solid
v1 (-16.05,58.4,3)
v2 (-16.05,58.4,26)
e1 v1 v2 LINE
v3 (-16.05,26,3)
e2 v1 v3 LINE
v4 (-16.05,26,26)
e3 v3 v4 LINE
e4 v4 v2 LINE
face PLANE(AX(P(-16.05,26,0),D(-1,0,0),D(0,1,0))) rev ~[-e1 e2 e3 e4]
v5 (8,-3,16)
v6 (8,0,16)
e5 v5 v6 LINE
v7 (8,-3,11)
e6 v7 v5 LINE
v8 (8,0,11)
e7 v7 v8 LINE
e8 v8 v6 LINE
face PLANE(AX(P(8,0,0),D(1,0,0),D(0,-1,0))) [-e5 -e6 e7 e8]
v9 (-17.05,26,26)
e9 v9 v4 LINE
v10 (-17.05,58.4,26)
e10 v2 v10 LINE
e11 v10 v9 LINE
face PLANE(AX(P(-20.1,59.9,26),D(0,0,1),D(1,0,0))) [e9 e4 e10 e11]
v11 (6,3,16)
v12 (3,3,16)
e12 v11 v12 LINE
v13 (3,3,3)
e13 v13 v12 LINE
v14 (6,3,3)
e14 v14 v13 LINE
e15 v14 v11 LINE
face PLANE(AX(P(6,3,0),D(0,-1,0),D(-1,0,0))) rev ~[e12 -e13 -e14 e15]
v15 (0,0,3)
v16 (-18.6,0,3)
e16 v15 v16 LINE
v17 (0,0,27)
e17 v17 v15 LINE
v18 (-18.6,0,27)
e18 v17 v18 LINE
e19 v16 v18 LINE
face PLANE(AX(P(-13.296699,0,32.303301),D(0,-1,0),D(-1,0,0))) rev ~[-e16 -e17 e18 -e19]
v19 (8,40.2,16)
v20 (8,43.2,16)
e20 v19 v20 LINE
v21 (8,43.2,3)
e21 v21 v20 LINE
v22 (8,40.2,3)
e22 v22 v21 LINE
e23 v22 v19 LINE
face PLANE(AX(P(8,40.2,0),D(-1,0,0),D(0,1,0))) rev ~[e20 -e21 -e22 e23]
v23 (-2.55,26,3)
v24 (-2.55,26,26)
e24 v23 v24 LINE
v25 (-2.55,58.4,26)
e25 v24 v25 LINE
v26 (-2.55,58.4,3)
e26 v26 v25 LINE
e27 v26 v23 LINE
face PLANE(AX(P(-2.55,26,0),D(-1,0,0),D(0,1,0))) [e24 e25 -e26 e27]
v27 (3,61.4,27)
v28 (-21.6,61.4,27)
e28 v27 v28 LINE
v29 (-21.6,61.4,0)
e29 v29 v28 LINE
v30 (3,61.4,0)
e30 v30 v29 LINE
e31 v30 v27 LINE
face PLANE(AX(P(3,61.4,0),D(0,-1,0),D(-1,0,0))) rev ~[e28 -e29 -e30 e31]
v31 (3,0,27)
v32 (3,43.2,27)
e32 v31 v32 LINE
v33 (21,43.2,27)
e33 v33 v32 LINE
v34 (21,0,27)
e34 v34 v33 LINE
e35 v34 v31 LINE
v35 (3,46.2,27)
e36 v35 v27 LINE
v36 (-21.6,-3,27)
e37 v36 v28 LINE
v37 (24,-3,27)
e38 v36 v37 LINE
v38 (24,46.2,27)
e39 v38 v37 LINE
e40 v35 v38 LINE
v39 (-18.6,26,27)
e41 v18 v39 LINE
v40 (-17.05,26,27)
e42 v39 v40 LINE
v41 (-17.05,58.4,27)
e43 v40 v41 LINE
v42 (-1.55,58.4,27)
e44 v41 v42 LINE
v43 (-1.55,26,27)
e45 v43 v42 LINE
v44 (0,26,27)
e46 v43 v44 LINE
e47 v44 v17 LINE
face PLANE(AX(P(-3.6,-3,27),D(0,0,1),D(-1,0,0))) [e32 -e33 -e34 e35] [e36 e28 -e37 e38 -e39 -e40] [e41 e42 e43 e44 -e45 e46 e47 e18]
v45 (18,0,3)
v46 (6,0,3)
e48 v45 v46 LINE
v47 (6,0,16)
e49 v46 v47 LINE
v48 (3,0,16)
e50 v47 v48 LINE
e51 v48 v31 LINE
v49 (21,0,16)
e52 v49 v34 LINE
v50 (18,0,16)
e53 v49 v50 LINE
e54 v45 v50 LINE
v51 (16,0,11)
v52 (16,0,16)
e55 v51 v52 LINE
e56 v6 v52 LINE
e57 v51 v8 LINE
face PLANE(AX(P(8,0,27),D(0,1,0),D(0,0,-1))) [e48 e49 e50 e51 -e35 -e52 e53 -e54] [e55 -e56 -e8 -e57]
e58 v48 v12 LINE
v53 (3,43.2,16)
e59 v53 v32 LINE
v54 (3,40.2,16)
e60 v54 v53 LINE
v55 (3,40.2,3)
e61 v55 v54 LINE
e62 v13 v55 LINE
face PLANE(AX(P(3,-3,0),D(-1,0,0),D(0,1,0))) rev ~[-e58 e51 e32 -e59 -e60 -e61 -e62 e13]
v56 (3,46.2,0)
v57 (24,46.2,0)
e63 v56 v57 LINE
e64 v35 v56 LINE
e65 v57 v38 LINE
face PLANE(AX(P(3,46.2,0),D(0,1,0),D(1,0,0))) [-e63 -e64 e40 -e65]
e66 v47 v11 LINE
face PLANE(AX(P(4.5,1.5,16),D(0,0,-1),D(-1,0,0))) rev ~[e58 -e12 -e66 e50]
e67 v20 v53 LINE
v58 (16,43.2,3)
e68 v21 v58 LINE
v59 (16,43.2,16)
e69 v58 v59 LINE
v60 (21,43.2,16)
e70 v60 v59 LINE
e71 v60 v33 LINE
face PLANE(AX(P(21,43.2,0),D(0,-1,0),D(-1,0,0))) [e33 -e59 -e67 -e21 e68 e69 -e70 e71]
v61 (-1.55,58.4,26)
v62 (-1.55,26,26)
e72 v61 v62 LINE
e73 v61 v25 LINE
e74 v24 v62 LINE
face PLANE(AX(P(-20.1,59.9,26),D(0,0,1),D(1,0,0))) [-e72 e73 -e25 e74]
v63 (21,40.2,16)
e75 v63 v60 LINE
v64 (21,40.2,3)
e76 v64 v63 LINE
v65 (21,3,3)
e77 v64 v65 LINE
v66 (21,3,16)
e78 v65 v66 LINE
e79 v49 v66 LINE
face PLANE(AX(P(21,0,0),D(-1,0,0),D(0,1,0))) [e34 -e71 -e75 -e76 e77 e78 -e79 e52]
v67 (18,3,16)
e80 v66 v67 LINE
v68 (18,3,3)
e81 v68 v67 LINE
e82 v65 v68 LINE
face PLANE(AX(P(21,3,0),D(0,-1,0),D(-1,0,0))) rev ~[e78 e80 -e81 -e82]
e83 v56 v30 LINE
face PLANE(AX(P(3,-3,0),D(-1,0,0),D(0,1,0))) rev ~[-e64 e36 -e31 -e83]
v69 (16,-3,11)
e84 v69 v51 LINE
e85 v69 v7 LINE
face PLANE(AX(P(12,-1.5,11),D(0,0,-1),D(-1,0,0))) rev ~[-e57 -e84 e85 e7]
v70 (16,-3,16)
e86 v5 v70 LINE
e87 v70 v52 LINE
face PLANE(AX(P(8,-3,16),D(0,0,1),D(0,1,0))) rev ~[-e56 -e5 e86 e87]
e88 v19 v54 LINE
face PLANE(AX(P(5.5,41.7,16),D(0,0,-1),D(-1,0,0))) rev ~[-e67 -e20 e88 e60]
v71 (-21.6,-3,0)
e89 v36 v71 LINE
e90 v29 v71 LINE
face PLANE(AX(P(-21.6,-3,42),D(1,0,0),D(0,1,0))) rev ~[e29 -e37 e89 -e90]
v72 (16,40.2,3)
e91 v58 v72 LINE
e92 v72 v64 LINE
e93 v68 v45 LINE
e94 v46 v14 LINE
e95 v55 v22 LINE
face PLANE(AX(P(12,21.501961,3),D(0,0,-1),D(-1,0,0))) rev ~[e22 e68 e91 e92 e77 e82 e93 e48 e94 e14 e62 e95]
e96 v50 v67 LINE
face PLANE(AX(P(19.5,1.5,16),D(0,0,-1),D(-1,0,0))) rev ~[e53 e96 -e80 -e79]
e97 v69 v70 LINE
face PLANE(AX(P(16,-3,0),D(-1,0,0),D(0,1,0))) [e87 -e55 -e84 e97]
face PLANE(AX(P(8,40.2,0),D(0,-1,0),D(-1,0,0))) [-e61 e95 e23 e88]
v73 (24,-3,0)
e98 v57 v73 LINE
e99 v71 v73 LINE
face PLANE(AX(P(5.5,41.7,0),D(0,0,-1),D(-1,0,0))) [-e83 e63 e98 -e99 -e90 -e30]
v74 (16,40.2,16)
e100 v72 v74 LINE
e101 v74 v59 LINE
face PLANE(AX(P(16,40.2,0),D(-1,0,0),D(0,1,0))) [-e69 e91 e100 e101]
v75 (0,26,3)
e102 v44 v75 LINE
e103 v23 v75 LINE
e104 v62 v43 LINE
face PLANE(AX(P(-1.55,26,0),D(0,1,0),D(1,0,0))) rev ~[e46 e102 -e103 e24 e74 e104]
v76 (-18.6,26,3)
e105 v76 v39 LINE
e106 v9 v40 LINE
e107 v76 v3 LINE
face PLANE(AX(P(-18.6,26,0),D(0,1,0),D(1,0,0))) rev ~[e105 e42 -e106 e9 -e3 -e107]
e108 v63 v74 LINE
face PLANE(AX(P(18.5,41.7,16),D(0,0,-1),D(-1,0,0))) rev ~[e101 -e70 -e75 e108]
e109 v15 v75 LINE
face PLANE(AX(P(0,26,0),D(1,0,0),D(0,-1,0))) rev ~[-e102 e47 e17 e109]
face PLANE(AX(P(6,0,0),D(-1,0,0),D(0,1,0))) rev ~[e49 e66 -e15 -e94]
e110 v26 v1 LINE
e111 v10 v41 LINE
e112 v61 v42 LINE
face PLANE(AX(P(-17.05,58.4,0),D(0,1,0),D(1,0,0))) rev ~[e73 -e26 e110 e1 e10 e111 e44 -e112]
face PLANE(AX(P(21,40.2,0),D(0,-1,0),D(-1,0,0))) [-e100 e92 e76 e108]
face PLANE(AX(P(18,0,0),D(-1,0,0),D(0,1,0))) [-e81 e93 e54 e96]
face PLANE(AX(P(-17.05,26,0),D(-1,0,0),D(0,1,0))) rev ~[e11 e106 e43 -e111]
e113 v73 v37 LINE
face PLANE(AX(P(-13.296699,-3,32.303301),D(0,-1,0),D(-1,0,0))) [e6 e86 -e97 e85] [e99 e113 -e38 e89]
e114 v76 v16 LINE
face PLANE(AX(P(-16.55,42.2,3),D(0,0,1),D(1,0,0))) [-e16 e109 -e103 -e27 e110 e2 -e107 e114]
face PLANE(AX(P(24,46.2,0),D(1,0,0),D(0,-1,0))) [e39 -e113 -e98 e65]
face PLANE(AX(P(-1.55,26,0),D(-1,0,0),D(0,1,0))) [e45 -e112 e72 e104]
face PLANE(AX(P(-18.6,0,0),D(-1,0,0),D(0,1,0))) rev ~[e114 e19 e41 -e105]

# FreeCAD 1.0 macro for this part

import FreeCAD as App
import Part
import Sketcher

V = App.Vector
Q = App.Units.Quantity


def add_polygon(sketch, points):
    """Adds a closed chain of lines whose ends are joined by coincident constraints."""
    first, n = sketch.GeometryCount, len(points)
    for a, b in zip(points, points[1:] + points[:1]):
        sketch.addGeometry(Part.LineSegment(App.Vector(*a, 0), App.Vector(*b, 0)), False)
    for i in range(n):
        sketch.addConstraint(Sketcher.Constraint("Coincident", first + i, 2, first + (i + 1) % n, 1))

doc = App.newDocument("Part")
params = doc.addObject("Spreadsheet::Sheet", "Params")
for row, (alias, value) in enumerate([
    ("sketch1_width", "24.6 mm"),
    ("sketch1_height", "64.4 mm"),
    ("pad1_length", "3 mm"),
    ("sketch2_height", "26 mm"),
    ("sketch2_width", "24.6 mm"),
    ("sketch2_width2", "13.5 mm"),
    ("sketch2_width3", "18.6 mm"),
    ("sketch2_height2", "64.4 mm"),
    ("pad2_length", "26 mm"),
    ("sketch3_height", "3 mm"),
    ("sketch3_width", "24.6 mm"),
    ("pad3_length", "35 mm"),
    ("sketch4_height", "26 mm"),
    ("sketch4_width", "24.6 mm"),
    ("sketch4_width2", "15.5 mm"),
    ("sketch4_width3", "18.6 mm"),
    ("sketch4_height2", "64.4 mm"),
    ("pad4_length", "27 mm"),
    ("sketch5_width", "3 mm"),
    ("sketch5_width2", "5 mm"),
    ("sketch5_width3", "8 mm"),
    ("sketch5_height", "37.2 mm"),
    ("pad5_length", "3 mm"),
    ("sketch6_width", "2 mm"),
    ("sketch6_width2", "5 mm"),
    ("sketch6_width3", "8 mm"),
    ("sketch6_height", "37.2 mm"),
    ("pad6_length", "2 mm"),
    ("sketch7_width", "8 mm"),
    ("sketch7_height", "3 mm"),
    ("pad7_length", "11 mm"),
    ("sketch8_width", "5 mm"),
    ("sketch8_width2", "18 mm"),
    ("sketch8_width3", "21 mm"),
    ("sketch8_height", "3 mm"),
    ("sketch8_height2", "43.2 mm"),
    ("pad8_length", "27 mm"),
    ("sketch9_width", "33.6 mm"),
    ("sketch9_height", "60.4 mm"),
    ("pad9_length", "3 mm"),
    ("sketch10_height", "54.4 mm"),
    ("pocket1_length", "3 mm"),
    ("sketch11_height", "3 mm"),
    ("sketch11_width", "33.6 mm"),
    ("sketch11_height2", "54.4 mm"),
    ("pad10_length", "27 mm"),
    ("sketch12_height", "47.4 mm"),
    ("pad11_length", "3 mm"),
    ("sketch13_height", "8 mm"),
    ("sketch13_width", "24.6 mm"),
    ("pocket2_length", "3 mm"),
    ("sketch14_width", "3 mm"),
    ("sketch14_height", "11 mm"),
    ("pad12_length", "8 mm"),
    ("sketch15_width", "5 mm"),
    ("sketch15_width2", "3 mm"),
    ("pad13_length", "16 mm"),
    ("sketch16_height", "3 mm"),
    ("sketch16_width", "36.6 mm"),
    ("pad14_length", "15 mm"),
    ("sketch17_width", "18.8 mm"),
    ("pocket3_length", "15 mm"),
    ("sketch18_width", "15 mm"),
    ("pad15_length", "3 mm"),
    ("sketch19_width", "15 mm"),
    ("pad16_length", "3 mm"),
    ("sketch20_width", "33.6 mm"),
    ("sketch20_height", "60.4 mm"),
    ("pocket4_length", "70 mm"),
    ("sketch21_width", "18 mm"),
    ("sketch21_width2", "3 mm"),
    ("sketch21_height", "15 mm"),
    ("pocket5_length", "70 mm"),
], start=1):
    params.set(f"A{row}", alias)
    params.set(f"B{row}", "=" + value)
    params.setAlias(f"B{row}", alias)

body = doc.addObject("PartDesign::Body", "Body")

# Sketch on XY plane
sketch1 = doc.addObject("Sketcher::SketchObject", "Sketch")
body.addObject(sketch1)
sketch1.AttachmentSupport = (doc.XY_Plane, [""])
sketch1.MapMode = "FlatFace"
add_polygon(sketch1, [(3, 61.4), (-21.6, 61.4), (-21.6, -3), (3, -3)])  # lines 0-3
sketch1.addConstraint(Sketcher.Constraint("Horizontal", 0))
sketch1.addConstraint(Sketcher.Constraint("Vertical", 1))
sketch1.addConstraint(Sketcher.Constraint("Horizontal", 2))
sketch1.addConstraint(Sketcher.Constraint("Vertical", 3))
sketch1.addConstraint(Sketcher.Constraint("DistanceX", 0, 2, 0, 1, Q("24.6 mm")))
sketch1.addConstraint(Sketcher.Constraint("DistanceY", 1, 2, 1, 1, Q("64.4 mm")))
sketch1.addConstraint(Sketcher.Constraint("DistanceY", 1, 2, -1, 1, Q("3 mm")))
sketch1.addConstraint(Sketcher.Constraint("DistanceX", -1, 1, 2, 2, Q("3 mm")))
sketch1.setExpression("Constraints[8]", "Params.sketch1_width")
sketch1.setExpression("Constraints[9]", "Params.sketch1_height")
pad1 = doc.addObject("PartDesign::Pad", "Pad")
body.addObject(pad1)
pad1.Profile = sketch1
pad1.setExpression("Length", "Params.pad1_length")

# Sketch on XY plane
sketch2 = doc.addObject("Sketcher::SketchObject", "Sketch001")
body.addObject(sketch2)
sketch2.AttachmentSupport = (doc.XY_Plane, [""])
sketch2.MapMode = "FlatFace"
add_polygon(sketch2, [(-21.6, 61.4), (-21.6, -3), (3, -3), (3, 61.4)])  # lines 0-3
add_polygon(sketch2, [(-18.6, 0), (-18.6, 26), (-16.05, 26), (-16.05, 58.4), (-2.55, 58.4), (-2.55, 26), (0, 26), (0, 0)])  # lines 4-11
sketch2.addConstraint(Sketcher.Constraint("Vertical", 0))
sketch2.addConstraint(Sketcher.Constraint("Horizontal", 1))
sketch2.addConstraint(Sketcher.Constraint("Vertical", 2))
sketch2.addConstraint(Sketcher.Constraint("Horizontal", 3))
sketch2.addConstraint(Sketcher.Constraint("Vertical", 4))
sketch2.addConstraint(Sketcher.Constraint("Horizontal", 5))
sketch2.addConstraint(Sketcher.Constraint("Vertical", 6))
sketch2.addConstraint(Sketcher.Constraint("Horizontal", 7))
sketch2.addConstraint(Sketcher.Constraint("Vertical", 8))
sketch2.addConstraint(Sketcher.Constraint("Horizontal", 9))
sketch2.addConstraint(Sketcher.Constraint("Vertical", 10))
sketch2.addConstraint(Sketcher.Constraint("Horizontal", 11))
sketch2.addConstraint(Sketcher.Constraint("Coincident", 10, 2, -1, 1))
sketch2.addConstraint(Sketcher.Constraint("Horizontal", 5, 2, 8, 2))
sketch2.addConstraint(Sketcher.Constraint("Equal", 5, 9))
sketch2.addConstraint(Sketcher.Constraint("DistanceY", 4, 1, 4, 2, Q("26 mm")))
sketch2.addConstraint(Sketcher.Constraint("DistanceX", 1, 1, 1, 2, Q("24.6 mm")))
sketch2.addConstraint(Sketcher.Constraint("DistanceX", 7, 1, 7, 2, Q("13.5 mm")))
sketch2.addConstraint(Sketcher.Constraint("DistanceX", 11, 2, 11, 1, Q("18.6 mm")))
sketch2.addConstraint(Sketcher.Constraint("DistanceY", 0, 2, 0, 1, Q("64.4 mm")))
sketch2.addConstraint(Sketcher.Constraint("DistanceY", 6, 1, 6, 2, Q("32.4 mm")))
sketch2.addConstraint(Sketcher.Constraint("DistanceY", 0, 2, -1, 1, Q("3 mm")))
sketch2.addConstraint(Sketcher.Constraint("DistanceX", -1, 1, 1, 2, Q("3 mm")))
sketch2.setExpression("Constraints[27]", "Params.sketch2_height")
sketch2.setExpression("Constraints[28]", "Params.sketch2_width")
sketch2.setExpression("Constraints[29]", "Params.sketch2_width2")
sketch2.setExpression("Constraints[30]", "Params.sketch2_width3")
sketch2.setExpression("Constraints[31]", "Params.sketch2_height2")
pad2 = doc.addObject("PartDesign::Pad", "Pad001")
body.addObject(pad2)
pad2.Profile = sketch2
pad2.setExpression("Length", "Params.pad2_length")

# Sketch on XY plane
sketch3 = doc.addObject("Sketcher::SketchObject", "Sketch002")
body.addObject(sketch3)
sketch3.AttachmentSupport = (doc.XY_Plane, [""])
sketch3.MapMode = "FlatFace"
add_polygon(sketch3, [(-21.6, 0), (-21.6, -3), (3, -3), (3, 0)])  # lines 0-3
sketch3.addConstraint(Sketcher.Constraint("Vertical", 0))
sketch3.addConstraint(Sketcher.Constraint("Horizontal", 1))
sketch3.addConstraint(Sketcher.Constraint("Vertical", 2))
sketch3.addConstraint(Sketcher.Constraint("Horizontal", 3))
sketch3.addConstraint(Sketcher.Constraint("PointOnObject", 2, 2, -1))
sketch3.addConstraint(Sketcher.Constraint("DistanceY", 0, 2, 0, 1, Q("3 mm")))
sketch3.addConstraint(Sketcher.Constraint("DistanceX", 1, 1, 1, 2, Q("24.6 mm")))
sketch3.addConstraint(Sketcher.Constraint("DistanceX", -1, 1, 1, 2, Q("3 mm")))
sketch3.setExpression("Constraints[9]", "Params.sketch3_height")
sketch3.setExpression("Constraints[10]", "Params.sketch3_width")
pad3 = doc.addObject("PartDesign::Pad", "Pad002")
body.addObject(pad3)
pad3.Profile = sketch3
pad3.setExpression("Length", "Params.pad3_length")

# Sketch on XY plane
sketch4 = doc.addObject("Sketcher::SketchObject", "Sketch003")
body.addObject(sketch4)
sketch4.AttachmentSupport = (doc.XY_Plane, [""])
sketch4.MapMode = "FlatFace"
add_polygon(sketch4, [(3, 61.4), (-21.6, 61.4), (-21.6, -3), (3, -3)])  # lines 0-3
add_polygon(sketch4, [(-18.6, 26), (-17.05, 26), (-17.05, 58.4), (-1.55, 58.4), (-1.55, 26), (0, 26), (0, 0), (-18.6, 0)])  # lines 4-11
sketch4.addConstraint(Sketcher.Constraint("Horizontal", 0))
sketch4.addConstraint(Sketcher.Constraint("Vertical", 1))
sketch4.addConstraint(Sketcher.Constraint("Horizontal", 2))
sketch4.addConstraint(Sketcher.Constraint("Vertical", 3))
sketch4.addConstraint(Sketcher.Constraint("Horizontal", 4))
sketch4.addConstraint(Sketcher.Constraint("Vertical", 5))
sketch4.addConstraint(Sketcher.Constraint("Horizontal", 6))
sketch4.addConstraint(Sketcher.Constraint("Vertical", 7))
sketch4.addConstraint(Sketcher.Constraint("Horizontal", 8))
sketch4.addConstraint(Sketcher.Constraint("Vertical", 9))
sketch4.addConstraint(Sketcher.Constraint("Horizontal", 10))
sketch4.addConstraint(Sketcher.Constraint("Vertical", 11))
sketch4.addConstraint(Sketcher.Constraint("Coincident", 9, 2, -1, 1))
sketch4.addConstraint(Sketcher.Constraint("Horizontal", 4, 2, 7, 2))
sketch4.addConstraint(Sketcher.Constraint("Equal", 4, 8))
sketch4.addConstraint(Sketcher.Constraint("DistanceY", 9, 2, 9, 1, Q("26 mm")))
sketch4.addConstraint(Sketcher.Constraint("DistanceX", 0, 2, 0, 1, Q("24.6 mm")))
sketch4.addConstraint(Sketcher.Constraint("DistanceX", 6, 1, 6, 2, Q("15.5 mm")))
sketch4.addConstraint(Sketcher.Constraint("DistanceX", 10, 2, 10, 1, Q("18.6 mm")))
sketch4.addConstraint(Sketcher.Constraint("DistanceY", 1, 2, 1, 1, Q("64.4 mm")))
sketch4.addConstraint(Sketcher.Constraint("DistanceY", 5, 1, 5, 2, Q("32.4 mm")))
sketch4.addConstraint(Sketcher.Constraint("DistanceY", 1, 2, -1, 1, Q("3 mm")))
sketch4.addConstraint(Sketcher.Constraint("DistanceX", -1, 1, 2, 2, Q("3 mm")))
sketch4.setExpression("Constraints[27]", "Params.sketch4_height")
sketch4.setExpression("Constraints[28]", "Params.sketch4_width")
sketch4.setExpression("Constraints[29]", "Params.sketch4_width2")
sketch4.setExpression("Constraints[30]", "Params.sketch4_width3")
sketch4.setExpression("Constraints[31]", "Params.sketch4_height2")
pad4 = doc.addObject("PartDesign::Pad", "Pad003")
body.addObject(pad4)
pad4.Profile = sketch4
pad4.setExpression("Length", "Params.pad4_length")

# Sketch on XY plane
sketch5 = doc.addObject("Sketcher::SketchObject", "Sketch004")
body.addObject(sketch5)
sketch5.AttachmentSupport = (doc.XY_Plane, [""])
sketch5.MapMode = "FlatFace"
add_polygon(sketch5, [(6, 0), (6, 3), (3, 3), (3, 40.2), (8, 40.2), (8, 43.2), (16, 43.2), (16, 40.2), (21, 40.2), (21, 3), (18, 3), (18, 0)])  # lines 0-11
sketch5.addConstraint(Sketcher.Constraint("Vertical", 0))
sketch5.addConstraint(Sketcher.Constraint("Horizontal", 1))
sketch5.addConstraint(Sketcher.Constraint("Vertical", 2))
sketch5.addConstraint(Sketcher.Constraint("Horizontal", 3))
sketch5.addConstraint(Sketcher.Constraint("Vertical", 4))
sketch5.addConstraint(Sketcher.Constraint("Horizontal", 5))
sketch5.addConstraint(Sketcher.Constraint("Vertical", 6))
sketch5.addConstraint(Sketcher.Constraint("Horizontal", 7))
sketch5.addConstraint(Sketcher.Constraint("Vertical", 8))
sketch5.addConstraint(Sketcher.Constraint("Horizontal", 9))
sketch5.addConstraint(Sketcher.Constraint("Vertical", 10))
sketch5.addConstraint(Sketcher.Constraint("Horizontal", 11))
sketch5.addConstraint(Sketcher.Constraint("PointOnObject", 10, 2, -1))
sketch5.addConstraint(Sketcher.Constraint("Horizontal", 3, 2, 6, 2))
sketch5.addConstraint(Sketcher.Constraint("Horizontal", 1, 2, 8, 2))
sketch5.addConstraint(Sketcher.Constraint("Equal", 3, 7))
sketch5.addConstraint(Sketcher.Constraint("Equal", 1, 9))
sketch5.addConstraint(Sketcher.Constraint("Equal", 9, 0))
sketch5.addConstraint(Sketcher.Constraint("Equal", 0, 4))
sketch5.addConstraint(Sketcher.Constraint("DistanceX", 1, 2, 1, 1, Q("3 mm")))
sketch5.addConstraint(Sketcher.Constraint("DistanceX", 3, 1, 3, 2, Q("5 mm")))
sketch5.addConstraint(Sketcher.Constraint("DistanceX", 5, 1, 5, 2, Q("8 mm")))
sketch5.addConstraint(Sketcher.Constraint("DistanceY", 2, 1, 2, 2, Q("37.2 mm")))
sketch5.addConstraint(Sketcher.Constraint("DistanceX", -1, 1, 0, 2, Q("6 mm")))
sketch5.setExpression("Constraints[31]", "Params.sketch5_width")
sketch5.setExpression("Constraints[32]", "Params.sketch5_width2")
sketch5.setExpression("Constraints[33]", "Params.sketch5_width3")
sketch5.setExpression("Constraints[34]", "Params.sketch5_height")
pad5 = doc.addObject("PartDesign::Pad", "Pad004")
body.addObject(pad5)
pad5.Profile = sketch5
pad5.setExpression("Length", "Params.pad5_length")

# Sketch on XY plane
sketch6 = doc.addObject("Sketcher::SketchObject", "Sketch005")
body.addObject(sketch6)
sketch6.AttachmentSupport = (doc.XY_Plane, [""])
sketch6.MapMode = "FlatFace"
add_polygon(sketch6, [(6, 3), (6, 0), (8, 0), (8, -3), (3, -3), (3, 3)])  # lines 0-5
add_polygon(sketch6, [(24, -3), (16, -3), (16, 0), (18, 0), (18, 3), (21, 3), (21, 40.2), (16, 40.2), (16, 43.2), (8, 43.2), (8, 40.2), (3, 40.2), (3, 46.2), (24, 46.2)])  # lines 6-19
sketch6.addConstraint(Sketcher.Constraint("Vertical", 0))
sketch6.addConstraint(Sketcher.Constraint("Horizontal", 1))
sketch6.addConstraint(Sketcher.Constraint("Vertical", 2))
sketch6.addConstraint(Sketcher.Constraint("Horizontal", 3))
sketch6.addConstraint(Sketcher.Constraint("Vertical", 4))
sketch6.addConstraint(Sketcher.Constraint("Horizontal", 5))
sketch6.addConstraint(Sketcher.Constraint("Horizontal", 6))
sketch6.addConstraint(Sketcher.Constraint("Vertical", 7))
sketch6.addConstraint(Sketcher.Constraint("Horizontal", 8))
sketch6.addConstraint(Sketcher.Constraint("Vertical", 9))
sketch6.addConstraint(Sketcher.Constraint("Horizontal", 10))
sketch6.addConstraint(Sketcher.Constraint("Vertical", 11))
sketch6.addConstraint(Sketcher.Constraint("Horizontal", 12))
sketch6.addConstraint(Sketcher.Constraint("Vertical", 13))
sketch6.addConstraint(Sketcher.Constraint("Horizontal", 14))
sketch6.addConstraint(Sketcher.Constraint("Vertical", 15))
sketch6.addConstraint(Sketcher.Constraint("Horizontal", 16))
sketch6.addConstraint(Sketcher.Constraint("Vertical", 17))
sketch6.addConstraint(Sketcher.Constraint("Horizontal", 18))
sketch6.addConstraint(Sketcher.Constraint("Vertical", 19))
sketch6.addConstraint(Sketcher.Constraint("PointOnObject", 0, 2, -1))
sketch6.addConstraint(Sketcher.Constraint("PointOnObject", 7, 2, -1))
sketch6.addConstraint(Sketcher.Constraint("Horizontal", 3, 2, 6, 2))
sketch6.addConstraint(Sketcher.Constraint("Horizontal", 5, 2, 9, 2))
sketch6.addConstraint(Sketcher.Constraint("Horizontal", 12, 2, 15, 2))
sketch6.addConstraint(Sketcher.Constraint("Vertical", 7, 2, 12, 2))
sketch6.addConstraint(Sketcher.Constraint("Vertical", 2, 2, 14, 2))
sketch6.addConstraint(Sketcher.Constraint("Vertical", 4, 2, 16, 2))
sketch6.addConstraint(Sketcher.Constraint("Equal", 1, 8))
sketch6.addConstraint(Sketcher.Constraint("Equal", 5, 10))
sketch6.addConstraint(Sketcher.Constraint("Equal", 6, 14))
sketch6.addConstraint(Sketcher.Constraint("Equal", 10, 0))
sketch6.addConstraint(Sketcher.Constraint("Equal", 0, 2))
sketch6.addConstraint(Sketcher.Constraint("Equal", 9, 13))
sketch6.addConstraint(Sketcher.Constraint("Equal", 4, 17))
sketch6.addConstraint(Sketcher.Constraint("DistanceX", 1, 1, 1, 2, Q("2 mm")))
sketch6.addConstraint(Sketcher.Constraint("DistanceX", 3, 2, 3, 1, Q("5 mm")))
sketch6.addConstraint(Sketcher.Constraint("DistanceX", 6, 2, 6, 1, Q("8 mm")))
sketch6.addConstraint(Sketcher.Constraint("DistanceY", 11, 1, 11, 2, Q("37.2 mm")))
sketch6.addConstraint(Sketcher.Constraint("DistanceX", -1, 1, 0, 2, Q("6 mm")))
sketch6.setExpression("Constraints[55]", "Params.sketch6_width")
sketch6.setExpression("Constraints[56]", "Params.sketch6_width2")
sketch6.setExpression("Constraints[57]", "Params.sketch6_width3")
sketch6.setExpression("Constraints[58]", "Params.sketch6_height")
pad6 = doc.addObject("PartDesign::Pad", "Pad005")
body.addObject(pad6)
pad6.Profile = sketch6
pad6.setExpression("Length", "Params.pad6_length")

# Sketch on XY plane
sketch7 = doc.addObject("Sketcher::SketchObject", "Sketch006")
body.addObject(sketch7)
sketch7.AttachmentSupport = (doc.XY_Plane, [""])
sketch7.MapMode = "FlatFace"
add_polygon(sketch7, [(16, 0), (16, -3), (8, -3), (8, 0)])  # lines 0-3
sketch7.addConstraint(Sketcher.Constraint("Vertical", 0))
sketch7.addConstraint(Sketcher.Constraint("Horizontal", 1))
sketch7.addConstraint(Sketcher.Constraint("Vertical", 2))
sketch7.addConstraint(Sketcher.Constraint("Horizontal", 3))
sketch7.addConstraint(Sketcher.Constraint("PointOnObject", 2, 2, -1))
sketch7.addConstraint(Sketcher.Constraint("DistanceX", 1, 2, 1, 1, Q("8 mm")))
sketch7.addConstraint(Sketcher.Constraint("DistanceY", 0, 2, 0, 1, Q("3 mm")))
sketch7.addConstraint(Sketcher.Constraint("DistanceX", -1, 1, 0, 2, Q("16 mm")))
sketch7.setExpression("Constraints[9]", "Params.sketch7_width")
sketch7.setExpression("Constraints[10]", "Params.sketch7_height")
pad7 = doc.addObject("PartDesign::Pad", "Pad006")
body.addObject(pad7)
pad7.Profile = sketch7
pad7.setExpression("Length", "Params.pad7_length")

# Sketch on XY plane
sketch8 = doc.addObject("Sketcher::SketchObject", "Sketch007")
body.addObject(sketch8)
sketch8.AttachmentSupport = (doc.XY_Plane, [""])
sketch8.MapMode = "FlatFace"
add_polygon(sketch8, [(3, -3), (3, 0), (8, 0), (8, -3)])  # lines 0-3
add_polygon(sketch8, [(16, -3), (16, 0), (21, 0), (21, 43.2), (3, 43.2), (3, 46.2), (24, 46.2), (24, -3)])  # lines 4-11
sketch8.addConstraint(Sketcher.Constraint("Vertical", 0))
sketch8.addConstraint(Sketcher.Constraint("Horizontal", 1))
sketch8.addConstraint(Sketcher.Constraint("Vertical", 2))
sketch8.addConstraint(Sketcher.Constraint("Horizontal", 3))
sketch8.addConstraint(Sketcher.Constraint("Vertical", 4))
sketch8.addConstraint(Sketcher.Constraint("Horizontal", 5))
sketch8.addConstraint(Sketcher.Constraint("Vertical", 6))
sketch8.addConstraint(Sketcher.Constraint("Horizontal", 7))
sketch8.addConstraint(Sketcher.Constraint("Vertical", 8))
sketch8.addConstraint(Sketcher.Constraint("Horizontal", 9))
sketch8.addConstraint(Sketcher.Constraint("Vertical", 10))
sketch8.addConstraint(Sketcher.Constraint("Horizontal", 11))
sketch8.addConstraint(Sketcher.Constraint("PointOnObject", 0, 2, -1))
sketch8.addConstraint(Sketcher.Constraint("PointOnObject", 4, 2, -1))
sketch8.addConstraint(Sketcher.Constraint("Horizontal", 3, 2, 10, 2))
sketch8.addConstraint(Sketcher.Constraint("Vertical", 3, 2, 7, 2))
sketch8.addConstraint(Sketcher.Constraint("Equal", 3, 5))
sketch8.addConstraint(Sketcher.Constraint("Equal", 4, 8))
sketch8.addConstraint(Sketcher.Constraint("DistanceX", 1, 1, 1, 2, Q("5 mm")))
sketch8.addConstraint(Sketcher.Constraint("DistanceX", 7, 2, 7, 1, Q("18 mm")))
sketch8.addConstraint(Sketcher.Constraint("DistanceX", 9, 1, 9, 2, Q("21 mm")))
sketch8.addConstraint(Sketcher.Constraint("DistanceY", 0, 1, 0, 2, Q("3 mm")))
sketch8.addConstraint(Sketcher.Constraint("DistanceY", 6, 1, 6, 2, Q("43.2 mm")))
sketch8.addConstraint(Sketcher.Constraint("DistanceX", -1, 1, 0, 2, Q("3 mm")))
sketch8.setExpression("Constraints[30]", "Params.sketch8_width")
sketch8.setExpression("Constraints[31]", "Params.sketch8_width2")
sketch8.setExpression("Constraints[32]", "Params.sketch8_width3")
sketch8.setExpression("Constraints[33]", "Params.sketch8_height")
sketch8.setExpression("Constraints[34]", "Params.sketch8_height2")
pad8 = doc.addObject("PartDesign::Pad", "Pad007")
body.addObject(pad8)
pad8.Profile = sketch8
pad8.setExpression("Length", "Params.pad8_length")

# Sketch on XY plane
sketch9 = doc.addObject("Sketcher::SketchObject", "Sketch008")
body.addObject(sketch9)
sketch9.AttachmentSupport = (doc.XY_Plane, [""])
sketch9.MapMode = "FlatFace"
add_polygon(sketch9, [(-21.6, 57.4), (-21.6, -3), (-55.2, -3), (-55.2, 57.4)])  # lines 0-3
sketch9.addConstraint(Sketcher.Constraint("Vertical", 0))
sketch9.addConstraint(Sketcher.Constraint("Horizontal", 1))
sketch9.addConstraint(Sketcher.Constraint("Vertical", 2))
sketch9.addConstraint(Sketcher.Constraint("Horizontal", 3))
sketch9.addConstraint(Sketcher.Constraint("DistanceX", 1, 2, 1, 1, Q("33.6 mm")))
sketch9.addConstraint(Sketcher.Constraint("DistanceY", 0, 2, 0, 1, Q("60.4 mm")))
sketch9.addConstraint(Sketcher.Constraint("DistanceY", 0, 2, -1, 1, Q("3 mm")))
sketch9.addConstraint(Sketcher.Constraint("DistanceX", 0, 2, -1, 1, Q("21.6 mm")))
sketch9.setExpression("Constraints[8]", "Params.sketch9_width")
sketch9.setExpression("Constraints[9]", "Params.sketch9_height")
pad9 = doc.addObject("PartDesign::Pad", "Pad008")
body.addObject(pad9)
pad9.Profile = sketch9
pad9.setExpression("Length", "Params.pad9_length")

# Sketch on XY plane
sketch10 = doc.addObject("Sketcher::SketchObject", "Sketch009")
body.addObject(sketch10)
sketch10.AttachmentSupport = (doc.XY_Plane, [""])
sketch10.MapMode = "FlatFace"
add_polygon(sketch10, [(-21.6, 54.4), (-21.6, 0), (-52.218778, 0), (-52.218778, 54.4)])  # lines 0-3
sketch10.addConstraint(Sketcher.Constraint("Vertical", 0))
sketch10.addConstraint(Sketcher.Constraint("Horizontal", 1))
sketch10.addConstraint(Sketcher.Constraint("Vertical", 2))
sketch10.addConstraint(Sketcher.Constraint("Horizontal", 3))
sketch10.addConstraint(Sketcher.Constraint("PointOnObject", 0, 2, -1))
sketch10.addConstraint(Sketcher.Constraint("DistanceY", 0, 2, 0, 1, Q("54.4 mm")))
sketch10.addConstraint(Sketcher.Constraint("DistanceX", 0, 2, -1, 1, Q("21.6 mm")))
sketch10.addConstraint(Sketcher.Constraint("DistanceX", 1, 2, 1, 1, Q("30.618778 mm")))
sketch10.setExpression("Constraints[9]", "Params.sketch10_height")
pocket1 = doc.addObject("PartDesign::Pocket", "Pocket")
body.addObject(pocket1)
pocket1.Profile = sketch10
pocket1.setExpression("Length", "Params.pocket1_length")
pocket1.Reversed = True

# Sketch on XY plane
sketch11 = doc.addObject("Sketcher::SketchObject", "Sketch010")
body.addObject(sketch11)
sketch11.AttachmentSupport = (doc.XY_Plane, [""])
sketch11.MapMode = "FlatFace"
add_polygon(sketch11, [(-21.6, 57.4), (-21.6, 54.4), (-52.218778, 54.4), (-52.218778, 0), (-21.6, 0), (-21.6, -3), (-55.2, -3), (-55.2, 57.4)])  # lines 0-7
sketch11.addConstraint(Sketcher.Constraint("Vertical", 0))
sketch11.addConstraint(Sketcher.Constraint("Horizontal", 1))
sketch11.addConstraint(Sketcher.Constraint("Vertical", 2))
sketch11.addConstraint(Sketcher.Constraint("Horizontal", 3))
sketch11.addConstraint(Sketcher.Constraint("Vertical", 4))
sketch11.addConstraint(Sketcher.Constraint("Horizontal", 5))
sketch11.addConstraint(Sketcher.Constraint("Vertical", 6))
sketch11.addConstraint(Sketcher.Constraint("Horizontal", 7))
sketch11.addConstraint(Sketcher.Constraint("PointOnObject", 2, 2, -1))
sketch11.addConstraint(Sketcher.Constraint("Vertical", 0, 2, 3, 2))
sketch11.addConstraint(Sketcher.Constraint("Equal", 0, 4))
sketch11.addConstraint(Sketcher.Constraint("DistanceY", 0, 2, 0, 1, Q("3 mm")))
sketch11.addConstraint(Sketcher.Constraint("DistanceX", 5, 2, 5, 1, Q("33.6 mm")))
sketch11.addConstraint(Sketcher.Constraint("DistanceY", 2, 2, 2, 1, Q("54.4 mm")))
sketch11.addConstraint(Sketcher.Constraint("DistanceX", 0, 2, -1, 1, Q("21.6 mm")))
sketch11.addConstraint(Sketcher.Constraint("DistanceX", 1, 2, 1, 1, Q("30.618778 mm")))
sketch11.setExpression("Constraints[19]", "Params.sketch11_height")
sketch11.setExpression("Constraints[20]", "Params.sketch11_width")
sketch11.setExpression("Constraints[21]", "Params.sketch11_height2")
pad10 = doc.addObject("PartDesign::Pad", "Pad009")
body.addObject(pad10)
pad10.Profile = sketch11
pad10.setExpression("Length", "Params.pad10_length")

# Sketch on XY plane
sketch12 = doc.addObject("Sketcher::SketchObject", "Sketch011")
body.addObject(sketch12)
sketch12.AttachmentSupport = (doc.XY_Plane, [""])
sketch12.MapMode = "FlatFace"
sketch12.AttachmentOffset = App.Placement(V(0, 0, 27), App.Rotation())
add_polygon(sketch12, [(-52.218778, 47.4), (-52.218778, 0), (-21.6, 0), (-21.6, 47.4)])  # lines 0-3
sketch12.addConstraint(Sketcher.Constraint("Vertical", 0))
sketch12.addConstraint(Sketcher.Constraint("Horizontal", 1))
sketch12.addConstraint(Sketcher.Constraint("Vertical", 2))
sketch12.addConstraint(Sketcher.Constraint("Horizontal", 3))
sketch12.addConstraint(Sketcher.Constraint("PointOnObject", 0, 2, -1))
sketch12.addConstraint(Sketcher.Constraint("DistanceY", 0, 2, 0, 1, Q("47.4 mm")))
sketch12.addConstraint(Sketcher.Constraint("DistanceX", 1, 2, -1, 1, Q("21.6 mm")))
sketch12.addConstraint(Sketcher.Constraint("DistanceX", 1, 1, 1, 2, Q("30.618778 mm")))
sketch12.setExpression("Constraints[9]", "Params.sketch12_height")
pad11 = doc.addObject("PartDesign::Pad", "Pad010")
body.addObject(pad11)
pad11.Profile = sketch12
pad11.setExpression("Length", "Params.pad11_length")
pad11.Reversed = True

# Sketch on XZ plane
sketch13 = doc.addObject("Sketcher::SketchObject", "Sketch012")
body.addObject(sketch13)
sketch13.AttachmentSupport = (doc.XZ_Plane, [""])
sketch13.MapMode = "FlatFace"
sketch13.AttachmentOffset = App.Placement(V(0, 0, 3), App.Rotation())
add_polygon(sketch13, [(-21.6, 35), (-21.6, 27), (3, 27), (3, 35)])  # lines 0-3
sketch13.addConstraint(Sketcher.Constraint("Vertical", 0))
sketch13.addConstraint(Sketcher.Constraint("Horizontal", 1))
sketch13.addConstraint(Sketcher.Constraint("Vertical", 2))
sketch13.addConstraint(Sketcher.Constraint("Horizontal", 3))
sketch13.addConstraint(Sketcher.Constraint("DistanceY", 0, 2, 0, 1, Q("8 mm")))
sketch13.addConstraint(Sketcher.Constraint("DistanceX", 1, 1, 1, 2, Q("24.6 mm")))
sketch13.addConstraint(Sketcher.Constraint("DistanceY", -1, 1, 0, 2, Q("27 mm")))
sketch13.addConstraint(Sketcher.Constraint("DistanceX", -1, 1, 1, 2, Q("3 mm")))
sketch13.setExpression("Constraints[8]", "Params.sketch13_height")
sketch13.setExpression("Constraints[9]", "Params.sketch13_width")
pocket2 = doc.addObject("PartDesign::Pocket", "Pocket001")
body.addObject(pocket2)
pocket2.Profile = sketch13
pocket2.setExpression("Length", "Params.pocket2_length")

# Sketch on YZ plane
sketch14 = doc.addObject("Sketcher::SketchObject", "Sketch013")
body.addObject(sketch14)
sketch14.AttachmentSupport = (doc.YZ_Plane, [""])
sketch14.MapMode = "FlatFace"
sketch14.AttachmentOffset = App.Placement(V(0, 0, 8), App.Rotation())
add_polygon(sketch14, [(0, 27), (-3, 27), (-3, 16), (0, 16)])  # lines 0-3
sketch14.addConstraint(Sketcher.Constraint("Horizontal", 0))
sketch14.addConstraint(Sketcher.Constraint("Vertical", 1))
sketch14.addConstraint(Sketcher.Constraint("Horizontal", 2))
sketch14.addConstraint(Sketcher.Constraint("Vertical", 3))
sketch14.addConstraint(Sketcher.Constraint("PointOnObject", 2, 2, -2))
sketch14.addConstraint(Sketcher.Constraint("DistanceX", 0, 2, 0, 1, Q("3 mm")))
sketch14.addConstraint(Sketcher.Constraint("DistanceY", 1, 2, 1, 1, Q("11 mm")))
sketch14.addConstraint(Sketcher.Constraint("DistanceY", -1, 1, 0, 2, Q("27 mm")))
sketch14.setExpression("Constraints[9]", "Params.sketch14_width")
sketch14.setExpression("Constraints[10]", "Params.sketch14_height")
pad12 = doc.addObject("PartDesign::Pad", "Pad011")
body.addObject(pad12)
pad12.Profile = sketch14
pad12.setExpression("Length", "Params.pad12_length")

# Sketch on XY plane
sketch15 = doc.addObject("Sketcher::SketchObject", "Sketch014")
body.addObject(sketch15)
sketch15.AttachmentSupport = (doc.XY_Plane, [""])
sketch15.MapMode = "FlatFace"
add_polygon(sketch15, [(8, 43.2), (8, 40.2), (3, 40.2), (3, 43.2)])  # lines 0-3
add_polygon(sketch15, [(21, 43.2), (21, 40.2), (16, 40.2), (16, 43.2)])  # lines 4-7
add_polygon(sketch15, [(21, 3), (21, 0), (18, 0), (18, 3)])  # lines 8-11
add_polygon(sketch15, [(6, 3), (6, 0), (3, 0), (3, 3)])  # lines 12-15
sketch15.addConstraint(Sketcher.Constraint("Vertical", 0))
sketch15.addConstraint(Sketcher.Constraint("Horizontal", 1))
sketch15.addConstraint(Sketcher.Constraint("Vertical", 2))
sketch15.addConstraint(Sketcher.Constraint("Horizontal", 3))
sketch15.addConstraint(Sketcher.Constraint("Vertical", 4))
sketch15.addConstraint(Sketcher.Constraint("Horizontal", 5))
sketch15.addConstraint(Sketcher.Constraint("Vertical", 6))
sketch15.addConstraint(Sketcher.Constraint("Horizontal", 7))
sketch15.addConstraint(Sketcher.Constraint("Vertical", 8))
sketch15.addConstraint(Sketcher.Constraint("Horizontal", 9))
sketch15.addConstraint(Sketcher.Constraint("Vertical", 10))
sketch15.addConstraint(Sketcher.Constraint("Horizontal", 11))
sketch15.addConstraint(Sketcher.Constraint("Vertical", 12))
sketch15.addConstraint(Sketcher.Constraint("Horizontal", 13))
sketch15.addConstraint(Sketcher.Constraint("Vertical", 14))
sketch15.addConstraint(Sketcher.Constraint("Horizontal", 15))
sketch15.addConstraint(Sketcher.Constraint("PointOnObject", 8, 2, -1))
sketch15.addConstraint(Sketcher.Constraint("PointOnObject", 12, 2, -1))
sketch15.addConstraint(Sketcher.Constraint("Horizontal", 1, 2, 4, 2))
sketch15.addConstraint(Sketcher.Constraint("Horizontal", 3, 2, 6, 2))
sketch15.addConstraint(Sketcher.Constraint("Horizontal", 11, 2, 14, 2))
sketch15.addConstraint(Sketcher.Constraint("Vertical", 7, 2, 8, 2))
sketch15.addConstraint(Sketcher.Constraint("Vertical", 2, 2, 13, 2))
sketch15.addConstraint(Sketcher.Constraint("Equal", 3, 5))
sketch15.addConstraint(Sketcher.Constraint("Equal", 11, 13))
sketch15.addConstraint(Sketcher.Constraint("Equal", 15, 0))
sketch15.addConstraint(Sketcher.Constraint("Equal", 6, 8))
sketch15.addConstraint(Sketcher.Constraint("DistanceX", 1, 2, 1, 1, Q("5 mm")))
sketch15.addConstraint(Sketcher.Constraint("DistanceX", 9, 2, 9, 1, Q("3 mm")))
sketch15.addConstraint(Sketcher.Constraint("DistanceX", -1, 1, 0, 2, Q("8 mm")))
sketch15.addConstraint(Sketcher.Constraint("DistanceX", -1, 1, 4, 2, Q("21 mm")))
sketch15.addConstraint(Sketcher.Constraint("DistanceY", -1, 1, 0, 2, Q("40.2 mm")))
sketch15.setExpression("Constraints[43]", "Params.sketch15_width")
sketch15.setExpression("Constraints[44]", "Params.sketch15_width2")
pad13 = doc.addObject("PartDesign::Pad", "Pad012")
body.addObject(pad13)
pad13.Profile = sketch15
pad13.setExpression("Length", "Params.pad13_length")

# Sketch on XY plane
sketch16 = doc.addObject("Sketcher::SketchObject", "Sketch015")
body.addObject(sketch16)
sketch16.AttachmentSupport = (doc.XY_Plane, [""])
sketch16.MapMode = "FlatFace"
sketch16.AttachmentOffset = App.Placement(V(0, 0, 27), App.Rotation())
add_polygon(sketch16, [(-55.2, 0), (-55.2, -3), (-18.6, -3), (-18.6, 0)])  # lines 0-3
sketch16.addConstraint(Sketcher.Constraint("Vertical", 0))
sketch16.addConstraint(Sketcher.Constraint("Horizontal", 1))
sketch16.addConstraint(Sketcher.Constraint("Vertical", 2))
sketch16.addConstraint(Sketcher.Constraint("Horizontal", 3))
sketch16.addConstraint(Sketcher.Constraint("PointOnObject", 2, 2, -1))
sketch16.addConstraint(Sketcher.Constraint("DistanceY", 0, 2, 0, 1, Q("3 mm")))
sketch16.addConstraint(Sketcher.Constraint("DistanceX", 1, 1, 1, 2, Q("36.6 mm")))
sketch16.addConstraint(Sketcher.Constraint("DistanceX", 0, 2, -1, 1, Q("55.2 mm")))
sketch16.setExpression("Constraints[9]", "Params.sketch16_height")
sketch16.setExpression("Constraints[10]", "Params.sketch16_width")
pad14 = doc.addObject("PartDesign::Pad", "Pad013")
body.addObject(pad14)
pad14.Profile = sketch16
pad14.setExpression("Length", "Params.pad14_length")

# Sketch on XZ plane
sketch17 = doc.addObject("Sketcher::SketchObject", "Sketch016")
body.addObject(sketch17)
sketch17.AttachmentSupport = (doc.XZ_Plane, [""])
sketch17.MapMode = "FlatFace"
sketch17.AttachmentOffset = App.Placement(V(0, 0, 3), App.Rotation())
add_polygon(sketch17, [(-30.256308, 28.7), (-30.256308, 40.301792), (-49.056308, 40.301792), (-49.056308, 28.7)])  # lines 0-3
sketch17.addConstraint(Sketcher.Constraint("Vertical", 0))
sketch17.addConstraint(Sketcher.Constraint("Horizontal", 1))
sketch17.addConstraint(Sketcher.Constraint("Vertical", 2))
sketch17.addConstraint(Sketcher.Constraint("Horizontal", 3))
sketch17.addConstraint(Sketcher.Constraint("DistanceX", 1, 2, 1, 1, Q("18.8 mm")))
sketch17.addConstraint(Sketcher.Constraint("DistanceY", -1, 1, 2, 2, Q("28.7 mm")))
sketch17.addConstraint(Sketcher.Constraint("DistanceY", 0, 1, 0, 2, Q("11.601792 mm")))
sketch17.addConstraint(Sketcher.Constraint("DistanceX", 0, 2, -1, 1, Q("30.256308 mm")))
sketch17.setExpression("Constraints[8]", "Params.sketch17_width")
pocket3 = doc.addObject("PartDesign::Pocket", "Pocket002")
body.addObject(pocket3)
pocket3.Profile = sketch17
pocket3.setExpression("Length", "Params.pocket3_length")

# Sketch on XZ plane
sketch18 = doc.addObject("Sketcher::SketchObject", "Sketch017")
body.addObject(sketch18)
sketch18.AttachmentSupport = (doc.XZ_Plane, [""])
sketch18.MapMode = "FlatFace"
sketch18.AttachmentOffset = App.Placement(V(0, 0, 3), App.Rotation())
add_polygon(sketch18, [(-18.6, 42), (-18.6, 27), (-3.6, 27)])  # lines 0-2
sketch18.addConstraint(Sketcher.Constraint("Vertical", 0))
sketch18.addConstraint(Sketcher.Constraint("Horizontal", 1))
sketch18.addConstraint(Sketcher.Constraint("Equal", 1, 0))
sketch18.addConstraint(Sketcher.Constraint("DistanceX", 1, 1, 1, 2, Q("15 mm")))
sketch18.addConstraint(Sketcher.Constraint("DistanceY", -1, 1, 0, 2, Q("27 mm")))
sketch18.addConstraint(Sketcher.Constraint("DistanceX", 0, 2, -1, 1, Q("18.6 mm")))
sketch18.setExpression("Constraints[6]", "Params.sketch18_width")
pad15 = doc.addObject("PartDesign::Pad", "Pad014")
body.addObject(pad15)
pad15.Profile = sketch18
pad15.setExpression("Length", "Params.pad15_length")
pad15.Reversed = True

# Sketch on YZ plane
sketch19 = doc.addObject("Sketcher::SketchObject", "Sketch018")
body.addObject(sketch19)
sketch19.AttachmentSupport = (doc.YZ_Plane, [""])
sketch19.MapMode = "FlatFace"
sketch19.AttachmentOffset = App.Placement(V(0, 0, -55.2), App.Rotation())
add_polygon(sketch19, [(0, 27), (0, 42), (15, 27)])  # lines 0-2
sketch19.addConstraint(Sketcher.Constraint("Vertical", 0))
sketch19.addConstraint(Sketcher.Constraint("Horizontal", 2))
sketch19.addConstraint(Sketcher.Constraint("PointOnObject", 0, 2, -2))
sketch19.addConstraint(Sketcher.Constraint("Equal", 2, 0))
sketch19.addConstraint(Sketcher.Constraint("DistanceX", 2, 2, 2, 1, Q("15 mm")))
sketch19.addConstraint(Sketcher.Constraint("DistanceY", -1, 1, 0, 2, Q("42 mm")))
sketch19.setExpression("Constraints[7]", "Params.sketch19_width")
pad16 = doc.addObject("PartDesign::Pad", "Pad015")
body.addObject(pad16)
pad16.Profile = sketch19
pad16.setExpression("Length", "Params.pad16_length")

# Sketch on XY plane
sketch20 = doc.addObject("Sketcher::SketchObject", "Sketch019")
body.addObject(sketch20)
sketch20.AttachmentSupport = (doc.XY_Plane, [""])
sketch20.MapMode = "FlatFace"
sketch20.AttachmentOffset = App.Placement(V(0, 0, 42), App.Rotation())
add_polygon(sketch20, [(-55.2, 57.4), (-55.2, -3), (-21.6, -3), (-21.6, 57.4)])  # lines 0-3
sketch20.addConstraint(Sketcher.Constraint("Vertical", 0))
sketch20.addConstraint(Sketcher.Constraint("Horizontal", 1))
sketch20.addConstraint(Sketcher.Constraint("Vertical", 2))
sketch20.addConstraint(Sketcher.Constraint("Horizontal", 3))
sketch20.addConstraint(Sketcher.Constraint("DistanceX", 1, 1, 1, 2, Q("33.6 mm")))
sketch20.addConstraint(Sketcher.Constraint("DistanceY", 0, 2, 0, 1, Q("60.4 mm")))
sketch20.addConstraint(Sketcher.Constraint("DistanceY", 0, 2, -1, 1, Q("3 mm")))
sketch20.addConstraint(Sketcher.Constraint("DistanceX", 0, 2, -1, 1, Q("55.2 mm")))
sketch20.setExpression("Constraints[8]", "Params.sketch20_width")
sketch20.setExpression("Constraints[9]", "Params.sketch20_height")
pocket4 = doc.addObject("PartDesign::Pocket", "Pocket003")
body.addObject(pocket4)
pocket4.Profile = sketch20
pocket4.setExpression("Length", "Params.pocket4_length")

# Sketch on XZ plane
sketch21 = doc.addObject("Sketcher::SketchObject", "Sketch020")
body.addObject(sketch21)
sketch21.AttachmentSupport = (doc.XZ_Plane, [""])
sketch21.MapMode = "FlatFace"
sketch21.AttachmentOffset = App.Placement(V(0, 0, 3), App.Rotation())
add_polygon(sketch21, [(-21.6, 27), (-3.6, 27), (-18.6, 42), (-21.6, 42)])  # lines 0-3
sketch21.addConstraint(Sketcher.Constraint("Horizontal", 0))
sketch21.addConstraint(Sketcher.Constraint("Horizontal", 2))
sketch21.addConstraint(Sketcher.Constraint("Vertical", 3))
sketch21.addConstraint(Sketcher.Constraint("DistanceX", 0, 1, 0, 2, Q("18 mm")))
sketch21.addConstraint(Sketcher.Constraint("DistanceX", 2, 2, 2, 1, Q("3 mm")))
sketch21.addConstraint(Sketcher.Constraint("DistanceY", 3, 2, 3, 1, Q("15 mm")))
sketch21.addConstraint(Sketcher.Constraint("DistanceY", -1, 1, 0, 2, Q("27 mm")))
sketch21.addConstraint(Sketcher.Constraint("DistanceX", 0, 2, -1, 1, Q("3.6 mm")))
sketch21.setExpression("Constraints[7]", "Params.sketch21_width")
sketch21.setExpression("Constraints[8]", "Params.sketch21_width2")
sketch21.setExpression("Constraints[9]", "Params.sketch21_height")
pocket5 = doc.addObject("PartDesign::Pocket", "Pocket004")
body.addObject(pocket5)
pocket5.Profile = sketch21
pocket5.setExpression("Length", "Params.pocket5_length")

doc.recompute()
